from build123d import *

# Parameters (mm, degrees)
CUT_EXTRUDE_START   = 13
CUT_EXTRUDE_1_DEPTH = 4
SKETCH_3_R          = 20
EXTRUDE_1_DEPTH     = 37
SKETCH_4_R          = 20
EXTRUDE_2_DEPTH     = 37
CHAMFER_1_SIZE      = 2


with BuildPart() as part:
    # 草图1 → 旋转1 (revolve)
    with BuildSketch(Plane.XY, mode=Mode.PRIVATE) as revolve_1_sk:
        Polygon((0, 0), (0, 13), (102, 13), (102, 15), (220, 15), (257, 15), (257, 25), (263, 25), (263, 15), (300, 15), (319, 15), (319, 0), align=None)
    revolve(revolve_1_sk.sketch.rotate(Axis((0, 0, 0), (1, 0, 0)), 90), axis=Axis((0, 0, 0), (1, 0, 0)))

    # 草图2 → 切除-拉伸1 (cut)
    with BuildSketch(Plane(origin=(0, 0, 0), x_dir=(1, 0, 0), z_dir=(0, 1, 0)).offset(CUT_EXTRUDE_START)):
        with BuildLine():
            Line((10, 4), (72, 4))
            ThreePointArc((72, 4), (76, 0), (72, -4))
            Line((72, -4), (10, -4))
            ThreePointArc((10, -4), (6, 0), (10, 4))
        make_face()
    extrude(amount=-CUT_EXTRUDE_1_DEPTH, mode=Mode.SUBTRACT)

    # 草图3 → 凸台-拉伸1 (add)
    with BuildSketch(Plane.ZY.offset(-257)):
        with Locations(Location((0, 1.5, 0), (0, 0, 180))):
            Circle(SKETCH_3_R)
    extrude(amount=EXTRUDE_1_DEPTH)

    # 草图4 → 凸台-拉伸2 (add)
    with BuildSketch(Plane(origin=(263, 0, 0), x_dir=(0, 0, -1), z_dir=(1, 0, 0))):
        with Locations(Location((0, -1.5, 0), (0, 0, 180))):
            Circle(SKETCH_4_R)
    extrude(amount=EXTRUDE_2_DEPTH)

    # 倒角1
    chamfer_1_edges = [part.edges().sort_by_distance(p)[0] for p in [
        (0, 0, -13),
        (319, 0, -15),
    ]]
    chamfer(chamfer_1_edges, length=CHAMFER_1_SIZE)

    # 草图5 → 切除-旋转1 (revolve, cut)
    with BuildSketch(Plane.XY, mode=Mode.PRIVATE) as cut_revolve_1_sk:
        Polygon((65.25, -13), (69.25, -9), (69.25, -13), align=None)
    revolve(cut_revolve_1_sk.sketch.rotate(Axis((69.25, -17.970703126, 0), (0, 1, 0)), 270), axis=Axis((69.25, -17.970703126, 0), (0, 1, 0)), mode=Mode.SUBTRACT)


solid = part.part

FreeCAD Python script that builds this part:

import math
import FreeCAD as App
import Part
import Sketcher
from FreeCAD import Vector


def edges_at(feature, points):
    """Names of the edges that pass closest to the given points."""
    edges = feature.Shape.Edges
    near = lambda p: min(range(len(edges)), key=lambda i: edges[i].distToShape(Part.Vertex(*p))[0])
    return sorted({f"Edge{near(p) + 1}" for p in points})


def add_polygon(sketch, points):
    """Adds a closed chain of lines whose ends are joined by coincident constraints."""
    first, n = sketch.GeometryCount, len(points)
    for a, b in zip(points, points[1:] + points[:1]):
        sketch.addGeometry(Part.LineSegment(App.Vector(*a, 0), App.Vector(*b, 0)), False)
    for i in range(n):
        sketch.addConstraint(Sketcher.Constraint("Coincident", first + i, 2, first + (i + 1) % n, 1))

doc = App.newDocument("Part")
body = doc.addObject("PartDesign::Body", "Body")

sketch1 = doc.addObject("Sketcher::SketchObject", "Sketch")
body.addObject(sketch1)
sketch1.AttachmentSupport = (doc.XY_Plane, [""])
sketch1.MapMode = "FlatFace"
add_polygon(sketch1, [(0, 13), (0, 0), (319, 0), (319, 15), (263, 15), (263, 25), (257, 25), (257, 15), (102, 15), (102, 13)])
sketch1.addConstraint(Sketcher.Constraint("Vertical", 0))
sketch1.addConstraint(Sketcher.Constraint("Horizontal", 1))
sketch1.addConstraint(Sketcher.Constraint("Vertical", 2))
sketch1.addConstraint(Sketcher.Constraint("Horizontal", 3))
sketch1.addConstraint(Sketcher.Constraint("Vertical", 4))
sketch1.addConstraint(Sketcher.Constraint("Horizontal", 5))
sketch1.addConstraint(Sketcher.Constraint("Vertical", 6))
sketch1.addConstraint(Sketcher.Constraint("Horizontal", 7))
sketch1.addConstraint(Sketcher.Constraint("Vertical", 8))
sketch1.addConstraint(Sketcher.Constraint("Horizontal", 9))
sketch1.addConstraint(Sketcher.Constraint("Coincident", 0, 2, -1, 1))
sketch1.addConstraint(Sketcher.Constraint("Horizontal", 3, 2, 6, 2))
sketch1.addConstraint(Sketcher.Constraint("DistanceX", 1, 1, 1, 2, 319.0))
sketch1.addConstraint(Sketcher.Constraint("DistanceX", 3, 2, 3, 1, 56.0))
sketch1.addConstraint(Sketcher.Constraint("DistanceX", 5, 2, 5, 1, 6.0))
sketch1.addConstraint(Sketcher.Constraint("DistanceX", 7, 2, 7, 1, 155.0))
sketch1.addConstraint(Sketcher.Constraint("DistanceY", 0, 2, 0, 1, 13.0))
sketch1.addConstraint(Sketcher.Constraint("DistanceY", 2, 1, 2, 2, 15.0))
sketch1.addConstraint(Sketcher.Constraint("DistanceY", 4, 1, 4, 2, 10.0))
revolution = doc.addObject("PartDesign::Revolution", "Revolution")
body.addObject(revolution)
revolution.Profile = sketch1
revolution.ReferenceAxis = (sketch1, ["H_Axis"])
revolution.Angle = 360

sketch2 = doc.addObject("Sketcher::SketchObject", "Sketch001")
body.addObject(sketch2)
sketch2.AttachmentSupport = (doc.XZ_Plane, [""])
sketch2.MapMode = "FlatFace"
sketch2.AttachmentOffset = App.Placement(Vector(0, 0, -13), App.Rotation())
sketch2.addGeometry(Part.LineSegment(Vector(72, -4, 0), Vector(10, -4, 0)), False)
sketch2.addGeometry(Part.ArcOfCircle(Part.Circle(Vector(10, 0, 0), Vector(0, 0, 1), 4), math.radians(90), math.radians(270)), False)
sketch2.addGeometry(Part.LineSegment(Vector(10, 4, 0), Vector(72, 4, 0)), False)
sketch2.addGeometry(Part.ArcOfCircle(Part.Circle(Vector(72, 0, 0), Vector(0, 0, 1), 4), math.radians(-90), math.radians(90)), False)
sketch2.addConstraint(Sketcher.Constraint("Tangent", 0, 2, 1, 2))
sketch2.addConstraint(Sketcher.Constraint("Tangent", 1, 1, 2, 1))
sketch2.addConstraint(Sketcher.Constraint("Tangent", 2, 2, 3, 2))
sketch2.addConstraint(Sketcher.Constraint("Tangent", 3, 1, 0, 1))
sketch2.addConstraint(Sketcher.Constraint("Horizontal", 0))
sketch2.addConstraint(Sketcher.Constraint("Horizontal", 2))
sketch2.addConstraint(Sketcher.Constraint("PointOnObject", 1, 3, -1))
sketch2.addConstraint(Sketcher.Constraint("Radius", 1, 4.0))
sketch2.addConstraint(Sketcher.Constraint("DistanceX", 0, 2, 0, 1, 62.0))
sketch2.addConstraint(Sketcher.Constraint("DistanceX", -1, 1, 1, 3, 10.0))
pocket1 = doc.addObject("PartDesign::Pocket", "Pocket")
body.addObject(pocket1)
pocket1.Profile = sketch2
pocket1.Length = 4
pocket1.Reversed = True

sketch3 = doc.addObject("Sketcher::SketchObject", "Sketch002")
body.addObject(sketch3)
sketch3.AttachmentSupport = (doc.YZ_Plane, [""])
sketch3.MapMode = "FlatFace"
sketch3.AttachmentOffset = App.Placement(Vector(0, 0, 257), App.Rotation())
sketch3.addGeometry(Part.Circle(Vector(2, 0, 0), Vector(0, 0, 1), 20), False)
sketch3.addConstraint(Sketcher.Constraint("PointOnObject", 0, 3, -1))
sketch3.addConstraint(Sketcher.Constraint("Diameter", 0, 40.0))
sketch3.addConstraint(Sketcher.Constraint("DistanceX", -1, 1, 0, 3, 1.5))
pad1 = doc.addObject("PartDesign::Pad", "Pad")
body.addObject(pad1)
pad1.Profile = sketch3
pad1.Length = 37
pad1.Reversed = True

sketch4 = doc.addObject("Sketcher::SketchObject", "Sketch003")
body.addObject(sketch4)
sketch4.AttachmentSupport = (doc.YZ_Plane, [""])
sketch4.MapMode = "FlatFace"
sketch4.AttachmentOffset = App.Placement(Vector(0, 0, 263), App.Rotation())
sketch4.addGeometry(Part.Circle(Vector(-2, 0, 0), Vector(0, 0, 1), 20), False)
sketch4.addConstraint(Sketcher.Constraint("PointOnObject", 0, 3, -1))
sketch4.addConstraint(Sketcher.Constraint("Diameter", 0, 40.0))
sketch4.addConstraint(Sketcher.Constraint("DistanceX", 0, 3, -1, 1, 1.5))
pad2 = doc.addObject("PartDesign::Pad", "Pad001")
body.addObject(pad2)
pad2.Profile = sketch4
pad2.Length = 37
doc.recompute()

chamfer = doc.addObject("PartDesign::Chamfer", "Chamfer")
body.addObject(chamfer)
chamfer.Base = (pad2, edges_at(pad2, [(0, 0, -13), (319, 0, -15)]))
chamfer.Size = 2

sketch5 = doc.addObject("Sketcher::SketchObject", "Sketch004")
body.addObject(sketch5)
sketch5.AttachmentSupport = (doc.XY_Plane, [""])
sketch5.MapMode = "FlatFace"
add_polygon(sketch5, [(69.2, -9), (65.2, -13), (69.2, -13)])
sketch5.addGeometry(Part.LineSegment(Vector(69.2, -13, 0), Vector(69.2, -9, 0)), True)
sketch5.addConstraint(Sketcher.Constraint("Horizontal", 1))
sketch5.addConstraint(Sketcher.Constraint("Vertical", 2))
sketch5.addConstraint(Sketcher.Constraint("Vertical", 3))
sketch5.addConstraint(Sketcher.Constraint("Coincident", 3, 1, 1, 2))
sketch5.addConstraint(Sketcher.Constraint("Equal", 1, 2))
sketch5.addConstraint(Sketcher.Constraint("Equal", 2, 3))
sketch5.addConstraint(Sketcher.Constraint("DistanceX", 1, 1, 1, 2, 4.0))
sketch5.addConstraint(Sketcher.Constraint("DistanceY", 0, 2, -1, 1, 13.0))
sketch5.addConstraint(Sketcher.Constraint("DistanceX", -1, 1, 0, 2, 65.25))
groove = doc.addObject("PartDesign::Groove", "Groove")
body.addObject(groove)
groove.Profile = sketch5
groove.ReferenceAxis = (sketch5, ["Axis0"])
groove.Angle = 360

doc.recompute()
